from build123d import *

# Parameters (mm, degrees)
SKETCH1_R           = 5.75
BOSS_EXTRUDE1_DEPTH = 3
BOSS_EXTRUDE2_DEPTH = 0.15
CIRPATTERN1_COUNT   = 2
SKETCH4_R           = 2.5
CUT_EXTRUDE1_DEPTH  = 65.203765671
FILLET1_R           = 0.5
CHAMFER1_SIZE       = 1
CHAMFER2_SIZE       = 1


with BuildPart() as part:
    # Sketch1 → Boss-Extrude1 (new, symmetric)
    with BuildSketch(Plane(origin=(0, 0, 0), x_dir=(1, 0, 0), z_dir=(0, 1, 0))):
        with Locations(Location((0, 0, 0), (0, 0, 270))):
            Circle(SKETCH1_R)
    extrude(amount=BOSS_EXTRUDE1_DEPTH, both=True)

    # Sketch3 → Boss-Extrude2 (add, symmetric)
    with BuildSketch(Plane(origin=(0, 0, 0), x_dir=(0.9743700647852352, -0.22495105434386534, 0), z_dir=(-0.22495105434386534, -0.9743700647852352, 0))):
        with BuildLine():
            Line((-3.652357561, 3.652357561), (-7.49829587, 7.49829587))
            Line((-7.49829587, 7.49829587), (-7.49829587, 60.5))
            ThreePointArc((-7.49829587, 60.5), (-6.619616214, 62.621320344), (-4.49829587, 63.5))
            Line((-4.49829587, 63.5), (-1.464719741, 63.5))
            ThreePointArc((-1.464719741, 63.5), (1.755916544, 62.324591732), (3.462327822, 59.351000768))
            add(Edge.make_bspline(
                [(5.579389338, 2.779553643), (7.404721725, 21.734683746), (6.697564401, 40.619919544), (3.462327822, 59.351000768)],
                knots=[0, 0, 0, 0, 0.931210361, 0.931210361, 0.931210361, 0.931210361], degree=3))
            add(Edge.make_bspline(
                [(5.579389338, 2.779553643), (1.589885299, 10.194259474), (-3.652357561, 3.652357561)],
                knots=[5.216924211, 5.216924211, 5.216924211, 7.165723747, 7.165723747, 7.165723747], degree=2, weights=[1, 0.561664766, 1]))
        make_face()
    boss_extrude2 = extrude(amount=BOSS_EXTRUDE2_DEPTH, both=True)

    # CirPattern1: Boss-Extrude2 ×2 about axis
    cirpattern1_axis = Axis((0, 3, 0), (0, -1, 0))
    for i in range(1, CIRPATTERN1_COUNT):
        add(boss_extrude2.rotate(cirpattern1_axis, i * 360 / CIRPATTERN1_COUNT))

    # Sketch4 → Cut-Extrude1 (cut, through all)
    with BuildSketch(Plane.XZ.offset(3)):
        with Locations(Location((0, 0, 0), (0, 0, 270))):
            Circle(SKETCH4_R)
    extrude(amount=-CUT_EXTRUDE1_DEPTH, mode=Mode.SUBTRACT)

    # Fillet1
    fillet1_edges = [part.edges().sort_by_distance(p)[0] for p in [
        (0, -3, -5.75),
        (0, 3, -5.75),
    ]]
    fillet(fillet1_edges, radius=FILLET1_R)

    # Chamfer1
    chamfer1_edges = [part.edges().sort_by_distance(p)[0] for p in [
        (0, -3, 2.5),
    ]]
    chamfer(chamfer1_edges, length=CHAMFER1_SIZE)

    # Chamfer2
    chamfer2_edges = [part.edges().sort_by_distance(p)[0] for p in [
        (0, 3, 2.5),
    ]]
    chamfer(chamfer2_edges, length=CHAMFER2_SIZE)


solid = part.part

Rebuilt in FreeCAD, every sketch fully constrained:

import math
import FreeCAD as App
import Part
import Sketcher
from FreeCAD import Vector
Q = App.Units.Quantity


def edges_at(feature, points):
    """Names of the edges that pass closest to the given points."""
    edges = feature.Shape.Edges
    near = lambda p: min(range(len(edges)), key=lambda i: edges[i].distToShape(Part.Vertex(*p))[0])
    return sorted({f"Edge{near(p) + 1}" for p in points})

doc = App.newDocument("Part")
body = doc.addObject("PartDesign::Body", "Body")

sketch1 = doc.addObject("Sketcher::SketchObject", "Sketch")
body.addObject(sketch1)
sketch1.AttachmentSupport = (doc.XZ_Plane, [""])
sketch1.MapMode = "FlatFace"
sketch1.addGeometry(Part.Circle(Vector(0, 0, 0), Vector(0, 0, 1), 6), False)
sketch1.addConstraint([
    Sketcher.Constraint("Coincident", 0, 3, -1, 1),
    Sketcher.Constraint("Diameter", 0, Q("11.5 mm")),
])
pad1 = doc.addObject("PartDesign::Pad", "Pad")
body.addObject(pad1)
pad1.Profile = sketch1
pad1.Length = 6
pad1.Midplane = True

sketch2 = doc.addObject("Sketcher::SketchObject", "Sketch001")
body.addObject(sketch2)
sketch2.Placement = App.Placement(Vector(0, 0, 0), App.Rotation(Vector(0.974370065, -0.224951054, 0), Vector(0, 0, 1), Vector(-0.224951054, -0.974370065, 0), "ZXY"))
sketch2.addGeometry([
    Part.LineSegment(Vector(-7.498296, 7.498296, 0), Vector(-3.652358, 3.652358, 0)),
    Part.BSplineCurve([Vector(5.579389, 2.779554, 0), Vector(1.589885, 10.194259, 0), Vector(-3.652358, 3.652358, 0)], [3, 3], [5.216924211, 7.165723747], False, 2, [1, 0.561664766, 1], False),
    Part.BSplineCurve([Vector(5.579389, 2.779554, 0), Vector(7.404722, 21.734684, 0), Vector(6.697564, 40.61992, 0), Vector(3.462328, 59.351001, 0)], [4, 4], [0, 0.931210361], False, 3, [1, 1, 1, 1], False),
    Part.ArcOfCircle(Part.Circle(Vector(-1.46472, 58.5, 0), Vector(0, 0, 1), 5), math.radians(9.799457), math.radians(90)),
    Part.LineSegment(Vector(-1.46472, 63.5, 0), Vector(-4.498296, 63.5, 0)),
    Part.ArcOfCircle(Part.Circle(Vector(-4.498296, 60.5, 0), Vector(0, 0, 1), 3), math.radians(90), math.radians(180)),
    Part.LineSegment(Vector(-7.498296, 60.5, 0), Vector(-7.498296, 7.498296, 0)),
], False)
sketch2.addConstraint([
    Sketcher.Constraint("Block", 1),
    Sketcher.Constraint("Block", 2),
    Sketcher.Constraint("Coincident", 0, 2, 1, 2),
    Sketcher.Constraint("Coincident", 2, 2, 3, 1),
    Sketcher.Constraint("Tangent", 3, 2, 4, 1),
    Sketcher.Constraint("Tangent", 4, 2, 5, 1),
    Sketcher.Constraint("Tangent", 5, 2, 6, 1),
    Sketcher.Constraint("Coincident", 6, 2, 0, 1),
    Sketcher.Constraint("Horizontal", 4),
    Sketcher.Constraint("Vertical", 6),
    Sketcher.Constraint("Radius", 3, Q("5 mm")),
    Sketcher.Constraint("Radius", 5, Q("3 mm")),
    Sketcher.Constraint("Angle", 0, Q("-45 deg")),
    Sketcher.Constraint("DistanceY", -1, 1, 3, 3, Q("58.5 mm")),
    Sketcher.Constraint("Distance", 0, Q("5.438978 mm")),
])
pad2 = doc.addObject("PartDesign::Pad", "Pad001")
body.addObject(pad2)
pad2.Profile = sketch2
pad2.Length = 0.3
pad2.Midplane = True
doc.recompute()

polarpattern = doc.addObject("PartDesign::PolarPattern", "PolarPattern")
body.addObject(polarpattern)
polarpattern.Originals = [pad2]
polarpattern.Axis = (doc.Y_Axis, [""])
polarpattern.Angle = 360
polarpattern.Occurrences = 2
body.Tip = polarpattern

sketch3 = doc.addObject("Sketcher::SketchObject", "Sketch002")
body.addObject(sketch3)
sketch3.AttachmentSupport = (doc.XZ_Plane, [""])
sketch3.MapMode = "FlatFace"
sketch3.AttachmentOffset = App.Placement(Vector(0, 0, 3), App.Rotation())
sketch3.addGeometry(Part.Circle(Vector(0, 0, 0), Vector(0, 0, 1), 2.5), False)
sketch3.addConstraint([
    Sketcher.Constraint("Coincident", 0, 3, -1, 1),
    Sketcher.Constraint("Diameter", 0, Q("5 mm")),
])
pocket1 = doc.addObject("PartDesign::Pocket", "Pocket")
body.addObject(pocket1)
pocket1.Profile = sketch3
pocket1.Type = "ThroughAll"
doc.recompute()

fillet = doc.addObject("PartDesign::Fillet", "Fillet")
body.addObject(fillet)
fillet.Base = (pocket1, edges_at(pocket1, [(0, -3, -5.75), (0, 3, -5.75)]))
fillet.Radius = 0.5
doc.recompute()

chamfer = doc.addObject("PartDesign::Chamfer", "Chamfer")
body.addObject(chamfer)
chamfer.Base = (fillet, edges_at(fillet, [(0, -3, 2.5)]))
chamfer.Size = 1
doc.recompute()

chamfer2 = doc.addObject("PartDesign::Chamfer", "Chamfer001")
body.addObject(chamfer2)
chamfer2.Base = (chamfer, edges_at(chamfer, [(0, 3, 2.5)]))
chamfer2.Size = 1

doc.recompute()
